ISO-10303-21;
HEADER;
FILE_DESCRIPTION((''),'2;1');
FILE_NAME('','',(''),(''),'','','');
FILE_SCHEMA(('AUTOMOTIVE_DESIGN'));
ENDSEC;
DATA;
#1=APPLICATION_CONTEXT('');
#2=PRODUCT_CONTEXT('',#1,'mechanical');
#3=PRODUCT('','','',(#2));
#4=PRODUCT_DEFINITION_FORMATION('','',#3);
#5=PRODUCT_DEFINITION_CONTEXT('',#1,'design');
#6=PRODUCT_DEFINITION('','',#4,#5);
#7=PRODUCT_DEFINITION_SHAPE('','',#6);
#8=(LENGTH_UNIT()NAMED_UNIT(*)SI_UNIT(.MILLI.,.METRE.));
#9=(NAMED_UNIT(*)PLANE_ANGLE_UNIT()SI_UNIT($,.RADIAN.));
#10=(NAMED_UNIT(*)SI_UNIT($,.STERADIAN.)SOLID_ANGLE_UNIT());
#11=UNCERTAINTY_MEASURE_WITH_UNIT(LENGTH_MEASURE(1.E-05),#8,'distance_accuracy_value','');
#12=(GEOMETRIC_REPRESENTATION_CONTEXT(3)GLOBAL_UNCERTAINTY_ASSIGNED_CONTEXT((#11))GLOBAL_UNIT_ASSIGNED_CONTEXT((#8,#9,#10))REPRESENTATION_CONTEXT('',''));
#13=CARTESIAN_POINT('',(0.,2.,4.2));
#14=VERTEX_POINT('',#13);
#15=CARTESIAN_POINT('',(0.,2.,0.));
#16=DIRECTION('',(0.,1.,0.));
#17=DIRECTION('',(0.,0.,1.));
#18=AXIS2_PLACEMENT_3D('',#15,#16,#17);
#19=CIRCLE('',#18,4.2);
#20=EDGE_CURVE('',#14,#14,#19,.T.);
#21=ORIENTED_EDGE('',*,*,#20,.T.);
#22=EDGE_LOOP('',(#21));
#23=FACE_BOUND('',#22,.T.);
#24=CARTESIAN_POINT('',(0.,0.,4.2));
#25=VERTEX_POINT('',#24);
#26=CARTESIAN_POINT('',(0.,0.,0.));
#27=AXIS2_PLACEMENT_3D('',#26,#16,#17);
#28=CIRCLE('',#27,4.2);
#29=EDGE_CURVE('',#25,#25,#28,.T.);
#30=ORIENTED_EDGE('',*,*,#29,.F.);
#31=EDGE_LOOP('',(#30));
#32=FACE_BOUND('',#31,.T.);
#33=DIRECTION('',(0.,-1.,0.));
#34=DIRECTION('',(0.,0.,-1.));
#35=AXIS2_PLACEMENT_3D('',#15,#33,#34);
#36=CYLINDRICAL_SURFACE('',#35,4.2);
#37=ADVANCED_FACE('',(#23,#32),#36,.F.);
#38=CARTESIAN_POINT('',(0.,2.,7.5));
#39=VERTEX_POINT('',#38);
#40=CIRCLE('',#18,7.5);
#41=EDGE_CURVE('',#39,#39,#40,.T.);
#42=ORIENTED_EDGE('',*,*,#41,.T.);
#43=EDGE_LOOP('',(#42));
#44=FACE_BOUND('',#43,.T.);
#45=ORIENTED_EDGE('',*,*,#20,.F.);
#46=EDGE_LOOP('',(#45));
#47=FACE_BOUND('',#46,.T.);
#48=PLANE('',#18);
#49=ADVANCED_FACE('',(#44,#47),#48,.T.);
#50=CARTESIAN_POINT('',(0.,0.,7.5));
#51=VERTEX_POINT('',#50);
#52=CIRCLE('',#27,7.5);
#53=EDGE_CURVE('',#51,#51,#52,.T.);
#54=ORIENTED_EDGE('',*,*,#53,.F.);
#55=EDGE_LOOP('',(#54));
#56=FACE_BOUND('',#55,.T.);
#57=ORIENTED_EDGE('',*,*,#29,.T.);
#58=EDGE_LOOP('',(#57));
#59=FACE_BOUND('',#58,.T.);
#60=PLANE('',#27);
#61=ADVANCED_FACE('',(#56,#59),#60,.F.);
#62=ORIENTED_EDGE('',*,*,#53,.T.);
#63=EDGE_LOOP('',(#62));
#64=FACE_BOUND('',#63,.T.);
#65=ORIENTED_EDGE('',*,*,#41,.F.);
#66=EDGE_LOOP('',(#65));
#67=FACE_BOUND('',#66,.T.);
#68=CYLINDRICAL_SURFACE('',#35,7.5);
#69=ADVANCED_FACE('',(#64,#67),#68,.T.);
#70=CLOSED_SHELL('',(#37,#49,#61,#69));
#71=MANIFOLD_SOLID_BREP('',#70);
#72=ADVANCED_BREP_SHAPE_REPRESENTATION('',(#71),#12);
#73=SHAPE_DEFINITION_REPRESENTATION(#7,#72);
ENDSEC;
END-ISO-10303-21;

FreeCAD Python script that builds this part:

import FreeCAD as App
import Part
import Sketcher
from FreeCAD import Vector

doc = App.newDocument("Part")
body = doc.addObject("PartDesign::Body", "Body")

sketch1 = doc.addObject("Sketcher::SketchObject", "Sketch")
body.addObject(sketch1)
sketch1.AttachmentSupport = (doc.XZ_Plane, [""])
sketch1.MapMode = "FlatFace"
sketch1.addGeometry([
    Part.Circle(Vector(0, 0, 0), Vector(0, 0, 1), 7.5),
    Part.Circle(Vector(0, 0, 0), Vector(0, 0, 1), 4.2),
], False)
sketch1.addConstraint([
    Sketcher.Constraint("Coincident", 0, 3, -1, 1),
    Sketcher.Constraint("Coincident", 1, 3, -1, 1),
    Sketcher.Constraint("Diameter", 0, 15.0),
    Sketcher.Constraint("Diameter", 1, 8.4),
])
pad1 = doc.addObject("PartDesign::Pad", "Pad")
body.addObject(pad1)
pad1.Profile = sketch1
pad1.Length = 2
pad1.Reversed = True

doc.recompute()
